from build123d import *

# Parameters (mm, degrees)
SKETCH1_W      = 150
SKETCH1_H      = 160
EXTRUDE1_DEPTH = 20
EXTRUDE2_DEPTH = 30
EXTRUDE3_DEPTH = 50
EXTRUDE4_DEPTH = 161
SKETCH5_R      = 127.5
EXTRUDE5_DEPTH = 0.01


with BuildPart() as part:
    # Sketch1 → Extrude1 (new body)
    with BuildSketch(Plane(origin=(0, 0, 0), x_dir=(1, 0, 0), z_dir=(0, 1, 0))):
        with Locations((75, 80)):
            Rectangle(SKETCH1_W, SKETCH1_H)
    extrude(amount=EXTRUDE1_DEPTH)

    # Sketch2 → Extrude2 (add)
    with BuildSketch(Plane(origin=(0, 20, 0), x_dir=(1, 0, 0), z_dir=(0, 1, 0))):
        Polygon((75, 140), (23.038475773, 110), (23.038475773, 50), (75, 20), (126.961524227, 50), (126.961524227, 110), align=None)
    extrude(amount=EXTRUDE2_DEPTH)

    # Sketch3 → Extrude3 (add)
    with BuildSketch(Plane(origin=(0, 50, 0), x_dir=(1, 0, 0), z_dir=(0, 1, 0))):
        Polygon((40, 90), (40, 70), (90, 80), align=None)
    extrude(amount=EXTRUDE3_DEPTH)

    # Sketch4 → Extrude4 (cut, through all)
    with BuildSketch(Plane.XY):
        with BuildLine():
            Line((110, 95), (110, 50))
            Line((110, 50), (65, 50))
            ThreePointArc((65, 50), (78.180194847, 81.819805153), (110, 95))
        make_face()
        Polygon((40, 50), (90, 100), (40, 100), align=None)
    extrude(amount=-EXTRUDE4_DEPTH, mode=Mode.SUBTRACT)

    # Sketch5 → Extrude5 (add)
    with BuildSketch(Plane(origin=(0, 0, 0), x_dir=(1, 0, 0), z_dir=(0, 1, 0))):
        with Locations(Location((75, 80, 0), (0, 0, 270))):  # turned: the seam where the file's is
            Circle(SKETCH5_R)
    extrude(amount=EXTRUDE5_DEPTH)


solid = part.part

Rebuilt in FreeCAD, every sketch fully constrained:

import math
import FreeCAD as App
import Part
import Sketcher
Q = App.Units.Quantity

doc = App.newDocument("Part")
body = doc.addObject("PartDesign::Body", "Body")

# Sketch on XZ plane
sketch1 = body.newObject("Sketcher::SketchObject", "Sketch")
sketch1.AttachmentSupport = (doc.getObject("XZ_Plane"), [""])
sketch1.MapMode = "FlatFace"
sketch1.addGeometry([
    Part.LineSegment(App.Vector(0, -160, 0), App.Vector(0, 0, 0)),
    Part.LineSegment(App.Vector(0, 0, 0), App.Vector(150, 0, 0)),
    Part.LineSegment(App.Vector(150, 0, 0), App.Vector(150, -160, 0)),
    Part.LineSegment(App.Vector(150, -160, 0), App.Vector(0, -160, 0)),
], False)
sketch1.addConstraint([
    Sketcher.Constraint("Coincident", 0, 2, 1, 1),
    Sketcher.Constraint("Coincident", 1, 2, 2, 1),
    Sketcher.Constraint("Coincident", 2, 2, 3, 1),
    Sketcher.Constraint("Coincident", 3, 2, 0, 1),
    Sketcher.Constraint("Vertical", 0),
    Sketcher.Constraint("Horizontal", 1),
    Sketcher.Constraint("Vertical", 2),
    Sketcher.Constraint("Horizontal", 3),
    Sketcher.Constraint("Coincident", 0, 2, -1, 1),
    Sketcher.Constraint("DistanceX", 1, 1, 1, 2, Q("150 mm")),
    Sketcher.Constraint("DistanceY", 0, 1, 0, 2, Q("160 mm")),
])
pad1 = body.newObject("PartDesign::Pad", "Pad")
pad1.Profile = sketch1
pad1.Length = 20
pad1.Reversed = True

# Sketch on XZ plane
sketch2 = body.newObject("Sketcher::SketchObject", "Sketch001")
sketch2.AttachmentSupport = (doc.getObject("XZ_Plane"), [""])
sketch2.MapMode = "FlatFace"
sketch2.AttachmentOffset = App.Placement(App.Vector(0, 0, -20), App.Rotation())
sketch2.addGeometry([
    Part.LineSegment(App.Vector(75, -140, 0), App.Vector(23, -110, 0)),  # 0
    Part.LineSegment(App.Vector(23, -110, 0), App.Vector(23, -50, 0)),  # 1
    Part.LineSegment(App.Vector(23, -50, 0), App.Vector(75, -20, 0)),  # 2
    Part.LineSegment(App.Vector(75, -20, 0), App.Vector(127, -50, 0)),  # 3
    Part.LineSegment(App.Vector(127, -50, 0), App.Vector(127, -110, 0)),  # 4
    Part.LineSegment(App.Vector(127, -110, 0), App.Vector(75, -140, 0)),  # 5
], False)
sketch2.addConstraint([
    Sketcher.Constraint("Coincident", 0, 2, 1, 1),
    Sketcher.Constraint("Coincident", 1, 2, 2, 1),
    Sketcher.Constraint("Coincident", 2, 2, 3, 1),
    Sketcher.Constraint("Coincident", 3, 2, 4, 1),
    Sketcher.Constraint("Coincident", 4, 2, 5, 1),
    Sketcher.Constraint("Coincident", 5, 2, 0, 1),
    Sketcher.Constraint("Vertical", 1),
    Sketcher.Constraint("Vertical", 4),
    Sketcher.Constraint("Parallel", 0, 3),
    Sketcher.Constraint("Parallel", 2, 5),
    Sketcher.Constraint("Horizontal", 1, 2, 3, 2),
    Sketcher.Constraint("Horizontal", 0, 2, 4, 2),
    Sketcher.Constraint("Vertical", 2, 2, 5, 2),
    Sketcher.Constraint("DistanceY", 1, 1, 1, 2, Q("60 mm")),
    Sketcher.Constraint("Angle", 0, Q("150 deg")),
    Sketcher.Constraint("Distance", 0, Q("60 mm")),
    Sketcher.Constraint("DistanceY", 0, 2, -1, 1, Q("110 mm")),
    Sketcher.Constraint("DistanceX", -1, 1, 2, 2, Q("75 mm")),
])
pad2 = body.newObject("PartDesign::Pad", "Pad001")
pad2.Profile = sketch2
pad2.Length = 30
pad2.Reversed = True

# Sketch on XZ plane
sketch3 = body.newObject("Sketcher::SketchObject", "Sketch002")
sketch3.AttachmentSupport = (doc.getObject("XZ_Plane"), [""])
sketch3.MapMode = "FlatFace"
sketch3.AttachmentOffset = App.Placement(App.Vector(0, 0, -50), App.Rotation())
sketch3.addGeometry([
    Part.LineSegment(App.Vector(40, -90, 0), App.Vector(40, -70, 0)),
    Part.LineSegment(App.Vector(40, -70, 0), App.Vector(90, -80, 0)),
    Part.LineSegment(App.Vector(90, -80, 0), App.Vector(40, -90, 0)),
], False)
sketch3.addConstraint([
    Sketcher.Constraint("Coincident", 0, 2, 1, 1),
    Sketcher.Constraint("Coincident", 1, 2, 2, 1),
    Sketcher.Constraint("Coincident", 2, 2, 0, 1),
    Sketcher.Constraint("Vertical", 0),
    Sketcher.Constraint("Equal", 1, 2),
    Sketcher.Constraint("DistanceY", 0, 1, 0, 2, Q("20 mm")),
    Sketcher.Constraint("DistanceX", -1, 1, 0, 2, Q("40 mm")),
    Sketcher.Constraint("DistanceY", 0, 2, -1, 1, Q("70 mm")),
    Sketcher.Constraint("DistanceX", -1, 1, 1, 2, Q("90 mm")),
])
pad3 = body.newObject("PartDesign::Pad", "Pad002")
pad3.Profile = sketch3
pad3.Length = 50
pad3.Reversed = True

# Sketch on XY plane
sketch4 = body.newObject("Sketcher::SketchObject", "Sketch003")
sketch4.AttachmentSupport = (doc.getObject("XY_Plane"), [""])
sketch4.MapMode = "FlatFace"
sketch4.addGeometry([
    Part.LineSegment(App.Vector(110, 50, 0), App.Vector(110, 95, 0)),  # 0
    Part.ArcOfCircle(Part.Circle(App.Vector(110, 50, 0), App.Vector(0, 0, 1), 45), math.radians(90), math.radians(180)),  # 1
    Part.LineSegment(App.Vector(65, 50, 0), App.Vector(110, 50, 0)),  # 2
    Part.LineSegment(App.Vector(40, 50, 0), App.Vector(90, 100, 0)),  # 3
    Part.LineSegment(App.Vector(90, 100, 0), App.Vector(40, 100, 0)),  # 4
    Part.LineSegment(App.Vector(40, 100, 0), App.Vector(40, 50, 0)),  # 5
], False)
sketch4.addConstraint([
    Sketcher.Constraint("Coincident", 0, 2, 1, 1),
    Sketcher.Constraint("Coincident", 1, 2, 2, 1),
    Sketcher.Constraint("Coincident", 2, 2, 0, 1),
    Sketcher.Constraint("Coincident", 3, 2, 4, 1),
    Sketcher.Constraint("Coincident", 4, 2, 5, 1),
    Sketcher.Constraint("Coincident", 5, 2, 3, 1),
    Sketcher.Constraint("Vertical", 0),
    Sketcher.Constraint("Horizontal", 2),
    Sketcher.Constraint("Horizontal", 4),
    Sketcher.Constraint("Vertical", 5),
    Sketcher.Constraint("Coincident", 2, 2, 1, 3),
    Sketcher.Constraint("Horizontal", 2, 2, 5, 2),
    Sketcher.Constraint("Equal", 4, 5),
    Sketcher.Constraint("Radius", 1, Q("45 mm")),
    Sketcher.Constraint("DistanceX", 4, 2, 4, 1, Q("50 mm")),
    Sketcher.Constraint("DistanceX", -1, 1, 1, 3, Q("110 mm")),
    Sketcher.Constraint("DistanceY", -1, 1, 1, 3, Q("50 mm")),
    Sketcher.Constraint("DistanceX", -1, 1, 3, 2, Q("90 mm")),
])
pocket1 = body.newObject("PartDesign::Pocket", "Pocket")
pocket1.Profile = sketch4
pocket1.Type = "ThroughAll"

# Sketch on XZ plane
sketch5 = body.newObject("Sketcher::SketchObject", "Sketch004")
sketch5.AttachmentSupport = (doc.getObject("XZ_Plane"), [""])
sketch5.MapMode = "FlatFace"
sketch5.addGeometry(Part.Circle(App.Vector(75, -80, 0), App.Vector(0, 0, 1), 128), False)
sketch5.addConstraint([
    Sketcher.Constraint("Diameter", 0, Q("255 mm")),
    Sketcher.Constraint("DistanceX", -1, 1, 0, 3, Q("75 mm")),
    Sketcher.Constraint("DistanceY", 0, 3, -1, 1, Q("80 mm")),
])
pad4 = body.newObject("PartDesign::Pad", "Pad003")
pad4.Profile = sketch5
pad4.Length = 0.01
pad4.Reversed = True

doc.recompute()
